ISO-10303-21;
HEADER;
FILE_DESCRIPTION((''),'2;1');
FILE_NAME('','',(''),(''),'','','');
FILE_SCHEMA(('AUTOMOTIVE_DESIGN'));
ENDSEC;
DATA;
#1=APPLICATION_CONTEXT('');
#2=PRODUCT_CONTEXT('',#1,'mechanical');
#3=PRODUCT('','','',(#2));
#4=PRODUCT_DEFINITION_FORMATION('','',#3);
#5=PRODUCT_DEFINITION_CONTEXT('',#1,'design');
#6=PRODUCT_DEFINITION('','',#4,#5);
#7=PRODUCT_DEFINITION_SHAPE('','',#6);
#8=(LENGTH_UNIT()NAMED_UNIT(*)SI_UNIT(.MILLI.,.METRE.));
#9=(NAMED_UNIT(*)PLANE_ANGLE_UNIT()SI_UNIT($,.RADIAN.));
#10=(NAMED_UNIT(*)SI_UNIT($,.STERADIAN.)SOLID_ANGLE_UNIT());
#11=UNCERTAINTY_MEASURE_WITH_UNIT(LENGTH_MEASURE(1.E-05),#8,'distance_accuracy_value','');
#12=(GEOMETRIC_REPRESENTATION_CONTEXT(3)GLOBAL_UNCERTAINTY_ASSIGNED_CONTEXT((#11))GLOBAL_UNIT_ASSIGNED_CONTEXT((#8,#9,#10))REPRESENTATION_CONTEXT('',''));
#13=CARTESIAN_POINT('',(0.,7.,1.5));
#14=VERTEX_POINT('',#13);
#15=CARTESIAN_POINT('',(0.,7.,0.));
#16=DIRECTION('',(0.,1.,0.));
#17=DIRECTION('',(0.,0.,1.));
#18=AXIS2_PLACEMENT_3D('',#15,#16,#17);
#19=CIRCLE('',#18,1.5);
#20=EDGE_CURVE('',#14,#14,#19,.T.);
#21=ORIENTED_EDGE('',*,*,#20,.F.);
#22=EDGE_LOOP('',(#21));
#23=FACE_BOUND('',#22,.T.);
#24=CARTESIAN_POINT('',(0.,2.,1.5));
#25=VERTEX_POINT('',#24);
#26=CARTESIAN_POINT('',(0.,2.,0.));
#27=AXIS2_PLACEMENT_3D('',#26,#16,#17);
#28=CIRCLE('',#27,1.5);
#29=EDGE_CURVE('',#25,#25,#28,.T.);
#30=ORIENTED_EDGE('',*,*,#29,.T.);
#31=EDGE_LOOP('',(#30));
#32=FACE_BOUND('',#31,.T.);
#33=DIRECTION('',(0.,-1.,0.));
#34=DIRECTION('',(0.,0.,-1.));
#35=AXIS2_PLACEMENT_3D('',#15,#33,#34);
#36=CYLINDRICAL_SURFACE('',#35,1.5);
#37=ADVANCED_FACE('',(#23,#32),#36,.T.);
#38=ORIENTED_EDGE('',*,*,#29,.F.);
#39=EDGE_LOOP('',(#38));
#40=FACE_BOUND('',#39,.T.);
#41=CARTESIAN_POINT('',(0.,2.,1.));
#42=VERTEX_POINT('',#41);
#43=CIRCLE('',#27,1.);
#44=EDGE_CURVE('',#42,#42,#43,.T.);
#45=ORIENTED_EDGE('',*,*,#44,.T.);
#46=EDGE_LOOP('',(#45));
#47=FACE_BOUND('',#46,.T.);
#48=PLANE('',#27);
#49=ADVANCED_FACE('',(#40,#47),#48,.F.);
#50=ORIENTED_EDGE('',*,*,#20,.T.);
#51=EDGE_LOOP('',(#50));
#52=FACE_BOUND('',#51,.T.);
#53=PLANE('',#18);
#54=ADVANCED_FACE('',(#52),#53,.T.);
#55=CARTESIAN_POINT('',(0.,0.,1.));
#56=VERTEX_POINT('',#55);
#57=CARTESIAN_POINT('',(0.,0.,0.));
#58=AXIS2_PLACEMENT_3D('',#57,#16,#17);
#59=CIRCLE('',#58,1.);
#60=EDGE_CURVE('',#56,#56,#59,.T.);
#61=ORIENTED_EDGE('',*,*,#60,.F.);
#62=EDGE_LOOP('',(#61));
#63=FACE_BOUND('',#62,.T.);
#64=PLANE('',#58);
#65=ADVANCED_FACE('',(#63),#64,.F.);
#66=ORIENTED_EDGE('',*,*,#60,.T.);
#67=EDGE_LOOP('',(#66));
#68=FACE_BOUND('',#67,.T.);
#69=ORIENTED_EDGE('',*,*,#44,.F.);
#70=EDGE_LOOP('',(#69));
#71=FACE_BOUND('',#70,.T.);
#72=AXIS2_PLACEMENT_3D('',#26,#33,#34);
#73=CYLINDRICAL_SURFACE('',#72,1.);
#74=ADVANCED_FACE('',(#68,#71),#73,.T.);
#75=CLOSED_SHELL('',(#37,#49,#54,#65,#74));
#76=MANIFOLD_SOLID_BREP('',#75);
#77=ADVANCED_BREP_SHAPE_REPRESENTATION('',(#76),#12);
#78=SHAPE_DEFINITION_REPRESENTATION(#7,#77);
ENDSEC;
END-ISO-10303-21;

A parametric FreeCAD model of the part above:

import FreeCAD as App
import Part
import Sketcher
from FreeCAD import Vector
Q = App.Units.Quantity

doc = App.newDocument("Part")
body = doc.addObject("PartDesign::Body", "Body")

sketch1 = body.newObject("Sketcher::SketchObject", "Sketch")
sketch1.AttachmentSupport = (doc.getObject("XZ_Plane"), [""])
sketch1.MapMode = "FlatFace"
sketch1.addGeometry(Part.Circle(Vector(0, 0, 0), Vector(0, 0, 1), 1), False)
sketch1.addConstraint([
    Sketcher.Constraint("Coincident", 0, 3, -1, 1),
    Sketcher.Constraint("Diameter", 0, Q("2 mm")),
])
pad1 = body.newObject("PartDesign::Pad", "Pad")
pad1.Profile = sketch1
pad1.Length = 2
pad1.Reversed = True

sketch2 = body.newObject("Sketcher::SketchObject", "Sketch001")
sketch2.AttachmentSupport = (doc.getObject("XZ_Plane"), [""])
sketch2.MapMode = "FlatFace"
sketch2.AttachmentOffset = App.Placement(Vector(0, 0, -2), App.Rotation())
sketch2.addGeometry(Part.Circle(Vector(0, 0, 0), Vector(0, 0, 1), 1.5), False)
sketch2.addConstraint([
    Sketcher.Constraint("Coincident", 0, 3, -1, 1),
    Sketcher.Constraint("Diameter", 0, Q("3 mm")),
])
pad2 = body.newObject("PartDesign::Pad", "Pad001")
pad2.Profile = sketch2
pad2.Length = 5
pad2.Reversed = True

doc.recompute()
